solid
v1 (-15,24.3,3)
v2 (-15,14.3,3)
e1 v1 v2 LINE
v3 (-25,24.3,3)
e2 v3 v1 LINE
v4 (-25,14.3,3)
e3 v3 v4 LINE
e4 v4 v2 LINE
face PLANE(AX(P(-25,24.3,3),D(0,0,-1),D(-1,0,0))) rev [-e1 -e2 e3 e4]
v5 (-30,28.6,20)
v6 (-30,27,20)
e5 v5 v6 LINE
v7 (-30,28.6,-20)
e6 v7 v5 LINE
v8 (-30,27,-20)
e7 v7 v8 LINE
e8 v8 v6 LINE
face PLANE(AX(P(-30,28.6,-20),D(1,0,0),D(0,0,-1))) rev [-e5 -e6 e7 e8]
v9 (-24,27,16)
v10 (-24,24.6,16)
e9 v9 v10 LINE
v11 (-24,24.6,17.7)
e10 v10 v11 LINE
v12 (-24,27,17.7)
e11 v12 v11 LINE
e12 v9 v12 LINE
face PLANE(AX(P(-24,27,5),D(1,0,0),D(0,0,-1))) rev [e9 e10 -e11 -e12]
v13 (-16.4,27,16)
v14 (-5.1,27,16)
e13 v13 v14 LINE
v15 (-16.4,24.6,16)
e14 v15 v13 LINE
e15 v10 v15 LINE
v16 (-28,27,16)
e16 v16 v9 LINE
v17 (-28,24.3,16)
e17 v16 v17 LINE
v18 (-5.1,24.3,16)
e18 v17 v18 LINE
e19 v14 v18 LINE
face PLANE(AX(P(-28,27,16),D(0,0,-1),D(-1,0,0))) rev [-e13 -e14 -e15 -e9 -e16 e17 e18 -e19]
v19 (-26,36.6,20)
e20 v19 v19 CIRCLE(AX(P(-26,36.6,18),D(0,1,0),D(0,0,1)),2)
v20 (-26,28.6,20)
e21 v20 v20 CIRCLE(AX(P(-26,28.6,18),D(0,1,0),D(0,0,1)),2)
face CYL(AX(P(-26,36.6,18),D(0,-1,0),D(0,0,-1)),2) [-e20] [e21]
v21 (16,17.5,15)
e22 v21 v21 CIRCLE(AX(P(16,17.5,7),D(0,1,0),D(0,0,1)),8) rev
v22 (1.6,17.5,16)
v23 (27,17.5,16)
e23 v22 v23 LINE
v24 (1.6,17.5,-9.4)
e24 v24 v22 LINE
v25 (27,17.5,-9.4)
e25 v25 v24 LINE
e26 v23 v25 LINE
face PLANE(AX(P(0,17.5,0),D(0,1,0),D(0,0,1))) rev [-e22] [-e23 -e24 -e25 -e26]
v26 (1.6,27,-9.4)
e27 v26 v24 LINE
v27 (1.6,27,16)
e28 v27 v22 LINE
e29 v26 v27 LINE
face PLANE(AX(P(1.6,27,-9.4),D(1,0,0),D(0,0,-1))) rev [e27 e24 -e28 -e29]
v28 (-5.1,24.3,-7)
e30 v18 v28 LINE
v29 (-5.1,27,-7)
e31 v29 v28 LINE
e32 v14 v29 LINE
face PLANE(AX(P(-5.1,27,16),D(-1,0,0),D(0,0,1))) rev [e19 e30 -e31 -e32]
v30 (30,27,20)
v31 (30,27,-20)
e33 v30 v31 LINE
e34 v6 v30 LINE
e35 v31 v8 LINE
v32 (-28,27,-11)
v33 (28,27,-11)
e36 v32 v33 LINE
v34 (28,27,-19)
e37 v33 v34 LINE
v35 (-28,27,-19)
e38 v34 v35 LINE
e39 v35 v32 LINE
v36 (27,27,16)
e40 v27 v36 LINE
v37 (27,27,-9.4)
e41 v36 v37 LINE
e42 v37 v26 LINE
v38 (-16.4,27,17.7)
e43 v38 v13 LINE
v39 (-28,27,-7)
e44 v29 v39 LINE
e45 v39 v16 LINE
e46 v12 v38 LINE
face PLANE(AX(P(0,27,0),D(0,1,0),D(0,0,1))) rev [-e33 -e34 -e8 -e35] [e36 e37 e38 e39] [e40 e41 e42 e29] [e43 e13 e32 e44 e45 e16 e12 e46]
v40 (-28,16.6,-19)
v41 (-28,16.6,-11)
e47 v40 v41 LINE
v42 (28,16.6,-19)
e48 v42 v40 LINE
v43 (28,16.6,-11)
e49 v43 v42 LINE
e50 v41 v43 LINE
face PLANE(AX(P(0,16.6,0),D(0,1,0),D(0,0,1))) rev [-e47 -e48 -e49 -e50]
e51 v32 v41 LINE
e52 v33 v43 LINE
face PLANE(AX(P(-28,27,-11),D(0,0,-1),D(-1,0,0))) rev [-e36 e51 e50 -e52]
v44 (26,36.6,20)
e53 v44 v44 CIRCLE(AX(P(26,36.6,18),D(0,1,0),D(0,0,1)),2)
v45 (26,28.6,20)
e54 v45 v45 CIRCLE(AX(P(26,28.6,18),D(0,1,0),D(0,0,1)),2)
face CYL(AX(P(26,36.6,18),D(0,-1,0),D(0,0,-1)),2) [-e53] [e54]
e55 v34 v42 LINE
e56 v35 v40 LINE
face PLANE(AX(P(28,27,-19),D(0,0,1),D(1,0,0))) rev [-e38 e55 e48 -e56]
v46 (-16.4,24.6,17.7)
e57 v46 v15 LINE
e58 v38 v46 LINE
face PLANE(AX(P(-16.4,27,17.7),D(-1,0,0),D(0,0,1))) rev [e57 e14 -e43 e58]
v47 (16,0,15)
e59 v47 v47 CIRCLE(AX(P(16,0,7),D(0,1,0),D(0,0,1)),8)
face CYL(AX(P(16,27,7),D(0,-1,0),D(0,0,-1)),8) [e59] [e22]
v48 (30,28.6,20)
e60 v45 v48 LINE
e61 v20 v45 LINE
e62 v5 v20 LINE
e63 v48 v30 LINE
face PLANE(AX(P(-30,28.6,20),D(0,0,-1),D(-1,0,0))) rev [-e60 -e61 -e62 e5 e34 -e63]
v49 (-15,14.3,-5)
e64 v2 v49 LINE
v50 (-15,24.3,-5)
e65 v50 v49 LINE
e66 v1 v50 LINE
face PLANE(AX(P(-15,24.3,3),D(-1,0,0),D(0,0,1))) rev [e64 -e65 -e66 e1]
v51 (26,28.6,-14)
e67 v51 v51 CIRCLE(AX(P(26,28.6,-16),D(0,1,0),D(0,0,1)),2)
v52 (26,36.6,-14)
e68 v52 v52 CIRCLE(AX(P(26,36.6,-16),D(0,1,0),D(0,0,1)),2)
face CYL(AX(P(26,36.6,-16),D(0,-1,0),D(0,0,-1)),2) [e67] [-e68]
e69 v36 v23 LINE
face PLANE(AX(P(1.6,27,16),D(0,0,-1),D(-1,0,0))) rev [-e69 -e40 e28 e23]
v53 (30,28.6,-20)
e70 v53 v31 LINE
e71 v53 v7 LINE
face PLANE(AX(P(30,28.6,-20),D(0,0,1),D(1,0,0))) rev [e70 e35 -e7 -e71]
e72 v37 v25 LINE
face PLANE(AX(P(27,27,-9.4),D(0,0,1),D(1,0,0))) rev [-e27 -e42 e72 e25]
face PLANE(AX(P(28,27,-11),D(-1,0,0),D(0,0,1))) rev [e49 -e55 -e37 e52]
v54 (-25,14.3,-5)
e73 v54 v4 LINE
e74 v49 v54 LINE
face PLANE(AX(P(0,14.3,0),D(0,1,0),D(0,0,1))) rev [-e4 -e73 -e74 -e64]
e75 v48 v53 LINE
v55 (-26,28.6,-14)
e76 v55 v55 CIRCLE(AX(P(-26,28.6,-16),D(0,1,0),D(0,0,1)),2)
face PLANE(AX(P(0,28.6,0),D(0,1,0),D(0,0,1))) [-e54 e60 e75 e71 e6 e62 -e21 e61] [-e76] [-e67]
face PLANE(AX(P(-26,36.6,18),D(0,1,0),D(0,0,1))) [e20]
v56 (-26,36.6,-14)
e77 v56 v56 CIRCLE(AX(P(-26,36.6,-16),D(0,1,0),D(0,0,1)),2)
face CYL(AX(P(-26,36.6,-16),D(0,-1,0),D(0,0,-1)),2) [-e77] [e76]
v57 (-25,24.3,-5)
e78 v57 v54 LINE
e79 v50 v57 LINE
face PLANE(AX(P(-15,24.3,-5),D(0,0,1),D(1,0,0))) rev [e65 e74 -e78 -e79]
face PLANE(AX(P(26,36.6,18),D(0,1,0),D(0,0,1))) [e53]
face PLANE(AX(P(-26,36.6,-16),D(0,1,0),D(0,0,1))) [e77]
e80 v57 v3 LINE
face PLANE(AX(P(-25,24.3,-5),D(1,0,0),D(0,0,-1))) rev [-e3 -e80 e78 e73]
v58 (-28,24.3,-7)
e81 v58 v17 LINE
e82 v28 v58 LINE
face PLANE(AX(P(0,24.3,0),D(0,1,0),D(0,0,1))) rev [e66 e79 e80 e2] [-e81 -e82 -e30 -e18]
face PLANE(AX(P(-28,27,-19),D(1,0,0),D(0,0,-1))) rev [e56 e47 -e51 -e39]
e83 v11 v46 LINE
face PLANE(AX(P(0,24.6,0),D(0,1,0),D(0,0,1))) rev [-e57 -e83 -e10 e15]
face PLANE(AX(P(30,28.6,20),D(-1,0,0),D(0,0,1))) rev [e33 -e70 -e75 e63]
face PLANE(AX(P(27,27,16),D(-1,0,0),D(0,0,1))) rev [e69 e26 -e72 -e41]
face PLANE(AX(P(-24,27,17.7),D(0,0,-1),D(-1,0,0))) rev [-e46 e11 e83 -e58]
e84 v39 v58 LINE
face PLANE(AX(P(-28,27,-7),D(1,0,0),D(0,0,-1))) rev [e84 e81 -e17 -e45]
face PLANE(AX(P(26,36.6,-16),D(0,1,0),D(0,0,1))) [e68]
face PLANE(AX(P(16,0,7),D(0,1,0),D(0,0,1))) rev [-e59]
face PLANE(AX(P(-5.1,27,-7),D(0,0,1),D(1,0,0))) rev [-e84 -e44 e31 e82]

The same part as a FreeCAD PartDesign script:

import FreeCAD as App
import Part
import Sketcher
from FreeCAD import Vector


def add_polygon(sketch, points):
    """Adds a closed chain of lines whose ends are joined by coincident constraints."""
    first, n = sketch.GeometryCount, len(points)
    for a, b in zip(points, points[1:] + points[:1]):
        sketch.addGeometry(Part.LineSegment(App.Vector(*a, 0), App.Vector(*b, 0)), False)
    for i in range(n):
        sketch.addConstraint(Sketcher.Constraint("Coincident", first + i, 2, first + (i + 1) % n, 1))

doc = App.newDocument("Part")
body = doc.addObject("PartDesign::Body", "Body")

sketch1 = body.newObject("Sketcher::SketchObject", "Sketch")
sketch1.AttachmentSupport = (doc.getObject("XZ_Plane"), [""])
sketch1.MapMode = "FlatFace"
sketch1.AttachmentOffset = App.Placement(Vector(0, 0, -28.6), App.Rotation())
sketch1.addGeometry(Part.Circle(Vector(-26, 18, 0), Vector(0, 0, 1), 2), False)
sketch1.addConstraint([
    Sketcher.Constraint("Diameter", 0, 4.0),
    Sketcher.Constraint("DistanceX", 0, 3, -1, 1, 26.0),
    Sketcher.Constraint("DistanceY", -1, 1, 0, 3, 18.0),
])
pad1 = body.newObject("PartDesign::Pad", "Pad")
pad1.Profile = sketch1
pad1.Length = 8
pad1.Reversed = True
body2 = doc.addObject("PartDesign::Body", "Body001")

sketch2 = body2.newObject("Sketcher::SketchObject", "Sketch001")
sketch2.AttachmentSupport = (doc.getObject("XZ_Plane001"), [""])
sketch2.MapMode = "FlatFace"
sketch2.AttachmentOffset = App.Placement(Vector(0, 0, -28.6), App.Rotation())
sketch2.addGeometry(Part.Circle(Vector(-26, -16, 0), Vector(0, 0, 1), 2), False)
sketch2.addConstraint([
    Sketcher.Constraint("Diameter", 0, 4.0),
    Sketcher.Constraint("DistanceX", 0, 3, -1, 1, 26.0),
    Sketcher.Constraint("DistanceY", 0, 3, -1, 1, 16.0),
])
pad2 = body2.newObject("PartDesign::Pad", "Pad001")
pad2.Profile = sketch2
pad2.Length = 8
pad2.Reversed = True
body3 = doc.addObject("PartDesign::Body", "Body002")

sketch3 = body3.newObject("Sketcher::SketchObject", "Sketch002")
sketch3.AttachmentSupport = (doc.getObject("XZ_Plane002"), [""])
sketch3.MapMode = "FlatFace"
sketch3.AttachmentOffset = App.Placement(Vector(0, 0, -28.6), App.Rotation())
sketch3.addGeometry(Part.Circle(Vector(26, 18, 0), Vector(0, 0, 1), 2), False)
sketch3.addConstraint([
    Sketcher.Constraint("Diameter", 0, 4.0),
    Sketcher.Constraint("DistanceX", -1, 1, 0, 3, 26.0),
    Sketcher.Constraint("DistanceY", -1, 1, 0, 3, 18.0),
])
pad3 = body3.newObject("PartDesign::Pad", "Pad002")
pad3.Profile = sketch3
pad3.Length = 8
pad3.Reversed = True
body4 = doc.addObject("PartDesign::Body", "Body003")

sketch4 = body4.newObject("Sketcher::SketchObject", "Sketch003")
sketch4.AttachmentSupport = (doc.getObject("XZ_Plane003"), [""])
sketch4.MapMode = "FlatFace"
sketch4.AttachmentOffset = App.Placement(Vector(0, 0, -28.6), App.Rotation())
sketch4.addGeometry(Part.Circle(Vector(26, -16, 0), Vector(0, 0, 1), 2), False)
sketch4.addConstraint([
    Sketcher.Constraint("Diameter", 0, 4.0),
    Sketcher.Constraint("DistanceX", -1, 1, 0, 3, 26.0),
    Sketcher.Constraint("DistanceY", 0, 3, -1, 1, 16.0),
])
pad4 = body4.newObject("PartDesign::Pad", "Pad003")
pad4.Profile = sketch4
pad4.Length = 8
pad4.Reversed = True
body.AllowCompound = True
doc.recompute()

boolean = body.newObject("PartDesign::Boolean", "Boolean")
boolean.Type = "Fuse"
boolean.addObjects([body2])
doc.recompute()

boolean2 = body.newObject("PartDesign::Boolean", "Boolean001")
boolean2.Type = "Fuse"
boolean2.addObjects([body3])
doc.recompute()

boolean3 = body.newObject("PartDesign::Boolean", "Boolean002")
boolean3.Type = "Fuse"
boolean3.addObjects([body4])

sketch5 = body.newObject("Sketcher::SketchObject", "Sketch004")
sketch5.AttachmentSupport = (doc.getObject("XZ_Plane"), [""])
sketch5.MapMode = "FlatFace"
sketch5.AttachmentOffset = App.Placement(Vector(0, 0, -27), App.Rotation())
add_polygon(sketch5, [(-30, -20), (-30, 20), (30, 20), (30, -20)])
sketch5.addConstraint([
    Sketcher.Constraint("Vertical", 0),
    Sketcher.Constraint("Horizontal", 1),
    Sketcher.Constraint("Vertical", 2),
    Sketcher.Constraint("Horizontal", 3),
    Sketcher.Constraint("Symmetric", 0, 2, 2, 2, -1, 1),
    Sketcher.Constraint("DistanceX", 1, 1, 1, 2, 60.0),
    Sketcher.Constraint("DistanceY", 0, 1, 0, 2, 40.0),
])
pad5 = body.newObject("PartDesign::Pad", "Pad004")
pad5.Profile = sketch5
pad5.Length = 1.6
pad5.Reversed = True

sketch6 = body.newObject("Sketcher::SketchObject", "Sketch005")
sketch6.AttachmentSupport = (doc.getObject("XZ_Plane"), [""])
sketch6.MapMode = "FlatFace"
sketch6.AttachmentOffset = App.Placement(Vector(0, 0, -24.3), App.Rotation())
add_polygon(sketch6, [(-28, -7), (-28, 16), (-5.1, 16), (-5.1, -7)])
sketch6.addConstraint([
    Sketcher.Constraint("Vertical", 0),
    Sketcher.Constraint("Horizontal", 1),
    Sketcher.Constraint("Vertical", 2),
    Sketcher.Constraint("Horizontal", 3),
    Sketcher.Constraint("DistanceY", 0, 1, 0, 2, 23.0),
    Sketcher.Constraint("DistanceX", 1, 1, 1, 2, 22.9),
    Sketcher.Constraint("DistanceX", 0, 2, -1, 1, 28.0),
    Sketcher.Constraint("DistanceY", -1, 1, 0, 2, 16.0),
])
pad6 = body.newObject("PartDesign::Pad", "Pad005")
pad6.Profile = sketch6
pad6.Length = 2.7
pad6.Reversed = True

sketch7 = body.newObject("Sketcher::SketchObject", "Sketch006")
sketch7.AttachmentSupport = (doc.getObject("XZ_Plane"), [""])
sketch7.MapMode = "FlatFace"
sketch7.AttachmentOffset = App.Placement(Vector(0, 0, -14.3), App.Rotation())
add_polygon(sketch7, [(-25, -5), (-25, 3), (-15, 3), (-15, -5)])
sketch7.addConstraint([
    Sketcher.Constraint("Vertical", 0),
    Sketcher.Constraint("Horizontal", 1),
    Sketcher.Constraint("Vertical", 2),
    Sketcher.Constraint("Horizontal", 3),
    Sketcher.Constraint("DistanceX", 1, 1, 1, 2, 10.0),
    Sketcher.Constraint("DistanceY", 0, 1, 0, 2, 8.0),
    Sketcher.Constraint("DistanceX", 0, 2, -1, 1, 25.0),
    Sketcher.Constraint("DistanceY", -1, 1, 0, 2, 3.0),
])
pad7 = body.newObject("PartDesign::Pad", "Pad006")
pad7.Profile = sketch7
pad7.Length = 10
pad7.Reversed = True

sketch8 = body.newObject("Sketcher::SketchObject", "Sketch007")
sketch8.AttachmentSupport = (doc.getObject("XZ_Plane"), [""])
sketch8.MapMode = "FlatFace"
sketch8.AttachmentOffset = App.Placement(Vector(0, 0, -17.5), App.Rotation())
add_polygon(sketch8, [(1.6, -9.4), (1.6, 16), (27, 16), (27, -9.4)])
sketch8.addConstraint([
    Sketcher.Constraint("Vertical", 0),
    Sketcher.Constraint("Horizontal", 1),
    Sketcher.Constraint("Vertical", 2),
    Sketcher.Constraint("Horizontal", 3),
    Sketcher.Constraint("Equal", 3, 0),
    Sketcher.Constraint("DistanceX", 1, 1, 1, 2, 25.4),
    Sketcher.Constraint("DistanceY", -1, 1, 0, 2, 16.0),
    Sketcher.Constraint("DistanceX", -1, 1, 1, 2, 27.0),
])
pad8 = body.newObject("PartDesign::Pad", "Pad007")
pad8.Profile = sketch8
pad8.Length = 9.5
pad8.Reversed = True

sketch9 = body.newObject("Sketcher::SketchObject", "Sketch008")
sketch9.AttachmentSupport = (doc.getObject("XZ_Plane"), [""])
sketch9.MapMode = "FlatFace"
sketch9.AttachmentOffset = App.Placement(Vector(0, 0, -16.6), App.Rotation())
add_polygon(sketch9, [(-28, -19), (-28, -11), (28, -11), (28, -19)])
sketch9.addConstraint([
    Sketcher.Constraint("Vertical", 0),
    Sketcher.Constraint("Horizontal", 1),
    Sketcher.Constraint("Vertical", 2),
    Sketcher.Constraint("Horizontal", 3),
    Sketcher.Constraint("DistanceX", 1, 1, 1, 2, 56.0),
    Sketcher.Constraint("DistanceY", 0, 1, 0, 2, 8.0),
    Sketcher.Constraint("DistanceX", 0, 2, -1, 1, 28.0),
    Sketcher.Constraint("DistanceY", 0, 2, -1, 1, 11.0),
])
pad9 = body.newObject("PartDesign::Pad", "Pad008")
pad9.Profile = sketch9
pad9.Length = 10.4
pad9.Reversed = True

sketch10 = body.newObject("Sketcher::SketchObject", "Sketch009")
sketch10.AttachmentSupport = (doc.getObject("XZ_Plane"), [""])
sketch10.MapMode = "FlatFace"
sketch10.AttachmentOffset = App.Placement(Vector(0, 0, -24.6), App.Rotation())
add_polygon(sketch10, [(-24, 5), (-24, 17.7), (-16.4, 17.7), (-16.4, 5)])
sketch10.addConstraint([
    Sketcher.Constraint("Vertical", 0),
    Sketcher.Constraint("Horizontal", 1),
    Sketcher.Constraint("Vertical", 2),
    Sketcher.Constraint("Horizontal", 3),
    Sketcher.Constraint("DistanceX", 1, 1, 1, 2, 7.6),
    Sketcher.Constraint("DistanceY", 0, 1, 0, 2, 12.7),
    Sketcher.Constraint("DistanceX", 0, 2, -1, 1, 24.0),
    Sketcher.Constraint("DistanceY", -1, 1, 2, 2, 5.0),
])
pad10 = body.newObject("PartDesign::Pad", "Pad009")
pad10.Profile = sketch10
pad10.Length = 2.4
pad10.Reversed = True

sketch11 = body.newObject("Sketcher::SketchObject", "Sketch010")
sketch11.AttachmentSupport = (doc.getObject("XZ_Plane"), [""])
sketch11.MapMode = "FlatFace"
sketch11.addGeometry(Part.Circle(Vector(16, 7, 0), Vector(0, 0, 1), 8), False)
sketch11.addConstraint([
    Sketcher.Constraint("Diameter", 0, 16.0),
    Sketcher.Constraint("DistanceX", -1, 1, 0, 3, 16.0),
    Sketcher.Constraint("DistanceY", -1, 1, 0, 3, 7.0),
])
pad11 = body.newObject("PartDesign::Pad", "Pad010")
pad11.Profile = sketch11
pad11.Length = 27
pad11.Reversed = True

doc.recompute()
